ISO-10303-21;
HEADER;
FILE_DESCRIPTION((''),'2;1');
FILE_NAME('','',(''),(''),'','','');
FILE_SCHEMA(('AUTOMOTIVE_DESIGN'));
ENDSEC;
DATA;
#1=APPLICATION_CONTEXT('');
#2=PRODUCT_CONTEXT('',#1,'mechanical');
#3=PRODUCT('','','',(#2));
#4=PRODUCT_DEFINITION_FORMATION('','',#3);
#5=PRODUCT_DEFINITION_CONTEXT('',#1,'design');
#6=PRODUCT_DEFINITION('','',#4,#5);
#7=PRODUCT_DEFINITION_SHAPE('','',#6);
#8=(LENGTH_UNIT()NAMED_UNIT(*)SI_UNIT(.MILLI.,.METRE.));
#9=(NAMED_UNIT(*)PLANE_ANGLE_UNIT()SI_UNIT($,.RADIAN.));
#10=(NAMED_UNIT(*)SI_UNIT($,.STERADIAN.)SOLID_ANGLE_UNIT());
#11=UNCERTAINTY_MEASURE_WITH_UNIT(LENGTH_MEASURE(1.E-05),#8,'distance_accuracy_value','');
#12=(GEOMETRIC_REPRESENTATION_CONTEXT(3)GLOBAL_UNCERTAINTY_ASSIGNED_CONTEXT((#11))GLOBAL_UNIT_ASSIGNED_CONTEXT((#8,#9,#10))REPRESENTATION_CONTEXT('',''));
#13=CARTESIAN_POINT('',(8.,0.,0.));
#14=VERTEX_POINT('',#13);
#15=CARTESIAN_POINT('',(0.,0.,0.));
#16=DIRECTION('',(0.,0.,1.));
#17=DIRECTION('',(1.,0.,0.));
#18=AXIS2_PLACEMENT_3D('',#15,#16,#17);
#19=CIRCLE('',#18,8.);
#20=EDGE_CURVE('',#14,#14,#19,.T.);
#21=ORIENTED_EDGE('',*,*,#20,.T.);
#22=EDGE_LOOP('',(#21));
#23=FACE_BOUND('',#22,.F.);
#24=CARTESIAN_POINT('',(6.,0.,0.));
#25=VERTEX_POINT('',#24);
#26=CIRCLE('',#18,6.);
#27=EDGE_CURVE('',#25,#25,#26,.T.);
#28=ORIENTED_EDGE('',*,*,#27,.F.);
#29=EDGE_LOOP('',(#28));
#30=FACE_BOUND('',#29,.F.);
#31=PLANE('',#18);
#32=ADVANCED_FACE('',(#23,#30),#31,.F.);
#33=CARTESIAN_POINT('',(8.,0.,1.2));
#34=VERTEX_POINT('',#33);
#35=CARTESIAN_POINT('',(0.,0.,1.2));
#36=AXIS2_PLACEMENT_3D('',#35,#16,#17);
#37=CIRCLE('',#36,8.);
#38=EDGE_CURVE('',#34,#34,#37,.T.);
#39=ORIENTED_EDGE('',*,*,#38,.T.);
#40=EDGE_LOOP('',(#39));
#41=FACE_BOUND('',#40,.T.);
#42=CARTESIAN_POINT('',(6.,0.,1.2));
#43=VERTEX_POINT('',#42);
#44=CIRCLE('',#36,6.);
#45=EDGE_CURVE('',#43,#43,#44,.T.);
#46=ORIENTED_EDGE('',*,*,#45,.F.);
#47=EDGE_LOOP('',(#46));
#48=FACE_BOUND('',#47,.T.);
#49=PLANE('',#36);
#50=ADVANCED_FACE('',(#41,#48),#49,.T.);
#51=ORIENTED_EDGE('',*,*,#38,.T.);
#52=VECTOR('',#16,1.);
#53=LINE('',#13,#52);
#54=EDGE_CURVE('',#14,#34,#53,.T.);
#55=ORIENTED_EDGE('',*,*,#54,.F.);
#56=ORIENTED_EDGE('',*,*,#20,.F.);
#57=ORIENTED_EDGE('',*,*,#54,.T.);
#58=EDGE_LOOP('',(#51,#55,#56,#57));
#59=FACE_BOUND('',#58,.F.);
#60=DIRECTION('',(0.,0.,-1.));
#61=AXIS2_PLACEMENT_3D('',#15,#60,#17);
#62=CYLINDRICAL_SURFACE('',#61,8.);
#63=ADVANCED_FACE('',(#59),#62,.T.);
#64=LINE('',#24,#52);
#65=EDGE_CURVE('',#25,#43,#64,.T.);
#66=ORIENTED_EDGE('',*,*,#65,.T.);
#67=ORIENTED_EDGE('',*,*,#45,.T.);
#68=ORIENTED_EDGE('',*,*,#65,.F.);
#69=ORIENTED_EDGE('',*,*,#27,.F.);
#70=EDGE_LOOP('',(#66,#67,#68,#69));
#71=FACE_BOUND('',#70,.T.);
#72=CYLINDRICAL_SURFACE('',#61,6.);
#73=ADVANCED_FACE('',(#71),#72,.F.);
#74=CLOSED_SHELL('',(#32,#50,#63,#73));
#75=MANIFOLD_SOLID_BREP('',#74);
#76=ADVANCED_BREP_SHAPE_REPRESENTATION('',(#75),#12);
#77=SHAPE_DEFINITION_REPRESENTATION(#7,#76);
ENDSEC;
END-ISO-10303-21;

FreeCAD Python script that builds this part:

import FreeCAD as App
import Part
import Sketcher
Q = App.Units.Quantity

doc = App.newDocument("Part")
body = doc.addObject("PartDesign::Body", "Body")

# Sketch on XY plane
sketch1 = body.newObject("Sketcher::SketchObject", "Sketch")
sketch1.AttachmentSupport = (doc.getObject("XY_Plane"), [""])
sketch1.MapMode = "FlatFace"
sketch1.addGeometry([
    Part.Circle(App.Vector(0, 0, 0), App.Vector(0, 0, 1), 8),
    Part.Circle(App.Vector(0, 0, 0), App.Vector(0, 0, 1), 6),
], False)
sketch1.addConstraint([
    Sketcher.Constraint("Coincident", 0, 3, -1, 1),
    Sketcher.Constraint("Coincident", 1, 3, -1, 1),
    Sketcher.Constraint("Diameter", 0, Q("16 mm")),
    Sketcher.Constraint("Diameter", 1, Q("12 mm")),
])
pad1 = body.newObject("PartDesign::Pad", "Pad")
pad1.Profile = sketch1
pad1.Length = 1.2

doc.recompute()
